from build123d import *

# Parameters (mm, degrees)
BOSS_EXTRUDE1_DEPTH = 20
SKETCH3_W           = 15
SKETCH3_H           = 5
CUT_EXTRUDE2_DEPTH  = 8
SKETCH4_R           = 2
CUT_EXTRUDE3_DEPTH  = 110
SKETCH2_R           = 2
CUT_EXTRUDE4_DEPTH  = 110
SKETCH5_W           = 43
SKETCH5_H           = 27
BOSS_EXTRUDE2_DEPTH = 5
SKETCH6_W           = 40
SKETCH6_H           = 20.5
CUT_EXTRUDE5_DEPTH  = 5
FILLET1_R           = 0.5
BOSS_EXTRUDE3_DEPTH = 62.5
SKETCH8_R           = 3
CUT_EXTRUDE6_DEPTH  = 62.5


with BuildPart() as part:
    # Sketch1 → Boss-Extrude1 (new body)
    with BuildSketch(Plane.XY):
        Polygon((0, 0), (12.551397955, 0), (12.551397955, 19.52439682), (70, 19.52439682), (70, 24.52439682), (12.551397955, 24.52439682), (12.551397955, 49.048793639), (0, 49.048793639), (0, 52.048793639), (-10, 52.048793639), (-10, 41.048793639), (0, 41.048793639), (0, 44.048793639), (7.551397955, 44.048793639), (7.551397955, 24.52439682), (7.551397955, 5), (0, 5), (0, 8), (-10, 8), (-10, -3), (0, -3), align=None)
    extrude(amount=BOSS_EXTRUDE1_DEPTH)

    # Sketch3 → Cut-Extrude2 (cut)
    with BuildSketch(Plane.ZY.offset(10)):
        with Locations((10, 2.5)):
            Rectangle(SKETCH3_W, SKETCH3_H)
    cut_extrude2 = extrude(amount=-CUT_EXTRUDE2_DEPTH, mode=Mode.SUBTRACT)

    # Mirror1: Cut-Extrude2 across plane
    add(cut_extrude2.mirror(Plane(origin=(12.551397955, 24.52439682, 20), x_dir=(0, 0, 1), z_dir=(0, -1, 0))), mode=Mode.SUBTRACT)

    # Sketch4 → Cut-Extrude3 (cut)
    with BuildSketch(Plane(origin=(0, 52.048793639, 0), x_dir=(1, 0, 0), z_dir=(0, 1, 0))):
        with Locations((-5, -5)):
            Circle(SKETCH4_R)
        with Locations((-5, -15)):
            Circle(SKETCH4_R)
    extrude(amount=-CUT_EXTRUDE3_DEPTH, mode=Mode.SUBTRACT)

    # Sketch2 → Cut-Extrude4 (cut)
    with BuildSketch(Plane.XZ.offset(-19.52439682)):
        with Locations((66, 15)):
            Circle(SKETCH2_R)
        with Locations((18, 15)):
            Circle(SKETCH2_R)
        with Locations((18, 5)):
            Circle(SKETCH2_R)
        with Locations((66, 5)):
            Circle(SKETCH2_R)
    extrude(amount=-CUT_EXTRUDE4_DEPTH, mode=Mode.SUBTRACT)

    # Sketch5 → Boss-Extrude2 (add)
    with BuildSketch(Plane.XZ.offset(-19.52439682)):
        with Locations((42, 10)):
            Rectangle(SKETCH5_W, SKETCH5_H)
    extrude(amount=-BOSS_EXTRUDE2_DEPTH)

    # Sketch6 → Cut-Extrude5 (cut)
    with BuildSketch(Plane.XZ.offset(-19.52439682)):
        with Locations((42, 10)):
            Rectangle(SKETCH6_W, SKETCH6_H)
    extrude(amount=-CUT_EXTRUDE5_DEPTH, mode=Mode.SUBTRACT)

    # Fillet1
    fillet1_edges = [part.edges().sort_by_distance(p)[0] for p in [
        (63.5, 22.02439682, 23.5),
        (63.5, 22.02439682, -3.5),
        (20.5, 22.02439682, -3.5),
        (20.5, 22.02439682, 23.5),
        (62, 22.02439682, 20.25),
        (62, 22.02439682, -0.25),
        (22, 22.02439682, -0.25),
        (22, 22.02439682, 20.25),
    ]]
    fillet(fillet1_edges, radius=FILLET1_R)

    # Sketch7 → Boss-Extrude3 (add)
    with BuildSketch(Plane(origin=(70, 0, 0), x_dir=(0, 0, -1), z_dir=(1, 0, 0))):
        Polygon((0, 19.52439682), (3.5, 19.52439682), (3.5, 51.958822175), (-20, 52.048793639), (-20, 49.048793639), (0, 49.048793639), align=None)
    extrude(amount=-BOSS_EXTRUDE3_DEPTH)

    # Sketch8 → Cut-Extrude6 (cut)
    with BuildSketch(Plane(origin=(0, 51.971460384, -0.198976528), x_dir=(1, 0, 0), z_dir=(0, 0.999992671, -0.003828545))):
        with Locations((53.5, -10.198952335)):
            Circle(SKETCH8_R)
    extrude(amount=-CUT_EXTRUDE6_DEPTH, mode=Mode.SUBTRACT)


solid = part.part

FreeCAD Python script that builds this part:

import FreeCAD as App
import Part
import Sketcher

V = App.Vector


def edges_at(feature, points):
    """Names of the edges that pass closest to the given points."""
    edges = feature.Shape.Edges
    near = lambda p: min(range(len(edges)), key=lambda i: edges[i].distToShape(Part.Vertex(*p))[0])
    return sorted({f"Edge{near(p) + 1}" for p in points})

doc = App.newDocument("Part")
params = doc.addObject("Spreadsheet::Sheet", "Params")
for row, (alias, value) in enumerate([
    ("sketch1_width", "10 mm"),
    ("sketch1_height", "5 mm"),
    ("sketch1_height2", "3 mm"),
    ("sketch1_height3", "11 mm"),
    ("pad1_length", "20 mm"),
    ("sketch2_width", "5 mm"),
    ("sketch2_height", "15 mm"),
    ("pocket1_length", "8 mm"),
    ("sketch3_diameter", "4 mm"),
    ("pocket2_length", "110 mm"),
    ("sketch4_diameter", "4 mm"),
    ("pocket3_length", "110 mm"),
    ("sketch5_width", "43 mm"),
    ("sketch5_height", "27 mm"),
    ("pad2_length", "5 mm"),
    ("sketch6_width", "40 mm"),
    ("sketch6_height", "20.5 mm"),
    ("pocket4_length", "5 mm"),
    ("fillet_radius", "0.5 mm"),
    ("sketch7_width", "3 mm"),
    ("sketch7_height", "20 mm"),
    ("sketch7_height2", "3.5 mm"),
    ("pad3_length", "62.5 mm"),
    ("sketch8_diameter", "6 mm"),
    ("pocket5_length", "62.5 mm"),
], start=1):
    params.set(f"A{row}", alias)
    params.set(f"B{row}", "=" + value)
    params.setAlias(f"B{row}", alias)

body = doc.addObject("PartDesign::Body", "Body")

# Sketch on XY plane
sketch1 = body.newObject("Sketcher::SketchObject", "Sketch")
sketch1.AttachmentSupport = (doc.getObject("XY_Plane"), [""])
sketch1.MapMode = "FlatFace"
sketch1.addGeometry([
    Part.LineSegment(V(0, 0, 0), V(12.6, 0, 0)),  # 0
    Part.LineSegment(V(12.6, 0, 0), V(12.6, 19.5, 0)),  # 1
    Part.LineSegment(V(12.6, 19.5, 0), V(70, 19.5, 0)),  # 2
    Part.LineSegment(V(70, 19.5, 0), V(70, 24.5, 0)),  # 3
    Part.LineSegment(V(70, 24.5, 0), V(12.6, 24.5, 0)),  # 4
    Part.LineSegment(V(12.6, 24.5, 0), V(12.6, 49, 0)),  # 5
    Part.LineSegment(V(12.6, 49, 0), V(0, 49, 0)),  # 6
    Part.LineSegment(V(0, 49, 0), V(0, 52, 0)),  # 7
    Part.LineSegment(V(0, 52, 0), V(-10, 52, 0)),  # 8
    Part.LineSegment(V(-10, 52, 0), V(-10, 41, 0)),  # 9
    Part.LineSegment(V(-10, 41, 0), V(0, 41, 0)),  # 10
    Part.LineSegment(V(0, 41, 0), V(0, 44, 0)),  # 11
    Part.LineSegment(V(0, 44, 0), V(7.6, 44, 0)),  # 12
    Part.LineSegment(V(7.6, 44, 0), V(7.6, 5, 0)),  # 13
    Part.LineSegment(V(7.6, 5, 0), V(0, 5, 0)),  # 14
    Part.LineSegment(V(0, 5, 0), V(0, 8, 0)),  # 15
    Part.LineSegment(V(0, 8, 0), V(-10, 8, 0)),  # 16
    Part.LineSegment(V(-10, 8, 0), V(-10, -3, 0)),  # 17
    Part.LineSegment(V(-10, -3, 0), V(0, -3, 0)),  # 18
    Part.LineSegment(V(0, -3, 0), V(0, 0, 0)),  # 19
], False)
sketch1.addConstraint([
    Sketcher.Constraint("Coincident", 0, 2, 1, 1),
    Sketcher.Constraint("Coincident", 1, 2, 2, 1),
    Sketcher.Constraint("Coincident", 2, 2, 3, 1),
    Sketcher.Constraint("Coincident", 3, 2, 4, 1),
    Sketcher.Constraint("Coincident", 4, 2, 5, 1),
    Sketcher.Constraint("Coincident", 5, 2, 6, 1),
    Sketcher.Constraint("Coincident", 6, 2, 7, 1),
    Sketcher.Constraint("Coincident", 7, 2, 8, 1),
    Sketcher.Constraint("Coincident", 8, 2, 9, 1),
    Sketcher.Constraint("Coincident", 9, 2, 10, 1),
    Sketcher.Constraint("Coincident", 10, 2, 11, 1),
    Sketcher.Constraint("Coincident", 11, 2, 12, 1),
    Sketcher.Constraint("Coincident", 12, 2, 13, 1),
    Sketcher.Constraint("Coincident", 13, 2, 14, 1),
    Sketcher.Constraint("Coincident", 14, 2, 15, 1),
    Sketcher.Constraint("Coincident", 15, 2, 16, 1),
    Sketcher.Constraint("Coincident", 16, 2, 17, 1),
    Sketcher.Constraint("Coincident", 17, 2, 18, 1),
    Sketcher.Constraint("Coincident", 18, 2, 19, 1),
    Sketcher.Constraint("Coincident", 19, 2, 0, 1),
    Sketcher.Constraint("Horizontal", 0),
    Sketcher.Constraint("Vertical", 1),
    Sketcher.Constraint("Horizontal", 2),
    Sketcher.Constraint("Vertical", 3),
    Sketcher.Constraint("Horizontal", 4),
    Sketcher.Constraint("Vertical", 5),
    Sketcher.Constraint("Horizontal", 6),
    Sketcher.Constraint("Vertical", 7),
    Sketcher.Constraint("Horizontal", 8),
    Sketcher.Constraint("Vertical", 9),
    Sketcher.Constraint("Horizontal", 10),
    Sketcher.Constraint("Vertical", 11),
    Sketcher.Constraint("Horizontal", 12),
    Sketcher.Constraint("Vertical", 13),
    Sketcher.Constraint("Horizontal", 14),
    Sketcher.Constraint("Vertical", 15),
    Sketcher.Constraint("Horizontal", 16),
    Sketcher.Constraint("Vertical", 17),
    Sketcher.Constraint("Horizontal", 18),
    Sketcher.Constraint("Vertical", 19),
    Sketcher.Constraint("Coincident", 19, 2, -1, 1),
    Sketcher.Constraint("PointOnObject", 6, 2, -2),
    Sketcher.Constraint("PointOnObject", 10, 2, -2),
    Sketcher.Constraint("PointOnObject", 14, 2, -2),
    Sketcher.Constraint("Vertical", 1, 2, 4, 2),
    Sketcher.Constraint("Vertical", 9, 2, 16, 2),
    Sketcher.Constraint("Equal", 7, 11),
    Sketcher.Constraint("Equal", 11, 15),
    Sketcher.Constraint("Equal", 9, 17),
    Sketcher.Constraint("Equal", 15, 19),
    Sketcher.Constraint("DistanceX", 8, 2, 8, 1, 10.0),
    Sketcher.Constraint("DistanceY", 3, 1, 3, 2, 5.0),
    Sketcher.Constraint("DistanceY", 7, 1, 7, 2, 3.0),
    Sketcher.Constraint("DistanceY", 9, 2, 9, 1, 11.0),
    Sketcher.Constraint("DistanceX", -1, 1, 2, 2, 70.0),
    Sketcher.Constraint("DistanceX", 12, 2, 5, 2, 5.0),
    Sketcher.Constraint("DistanceX", 0, 1, 0, 2, 12.551398),
    Sketcher.Constraint("DistanceY", 1, 1, 1, 2, 19.524397),
    Sketcher.Constraint("DistanceY", 5, 1, 5, 2, 24.524397),
])
sketch1.setExpression("Constraints[50]", "Params.sketch1_width")
sketch1.setExpression("Constraints[51]", "Params.sketch1_height")
sketch1.setExpression("Constraints[52]", "Params.sketch1_height2")
sketch1.setExpression("Constraints[53]", "Params.sketch1_height3")
pad1 = body.newObject("PartDesign::Pad", "Pad")
pad1.Profile = sketch1
pad1.setExpression("Length", "Params.pad1_length")

# Sketch on YZ plane
sketch2 = body.newObject("Sketcher::SketchObject", "Sketch001")
sketch2.AttachmentSupport = (doc.getObject("YZ_Plane"), [""])
sketch2.MapMode = "FlatFace"
sketch2.AttachmentOffset = App.Placement(V(0, 0, -10), App.Rotation())
sketch2.addGeometry([
    Part.LineSegment(V(5, 2, 0), V(0, 2, 0)),
    Part.LineSegment(V(0, 2, 0), V(0, 18, 0)),
    Part.LineSegment(V(0, 18, 0), V(5, 18, 0)),
    Part.LineSegment(V(5, 18, 0), V(5, 2, 0)),
], False)
sketch2.addConstraint([
    Sketcher.Constraint("Coincident", 0, 2, 1, 1),
    Sketcher.Constraint("Coincident", 1, 2, 2, 1),
    Sketcher.Constraint("Coincident", 2, 2, 3, 1),
    Sketcher.Constraint("Coincident", 3, 2, 0, 1),
    Sketcher.Constraint("Horizontal", 0),
    Sketcher.Constraint("Vertical", 1),
    Sketcher.Constraint("Horizontal", 2),
    Sketcher.Constraint("Vertical", 3),
    Sketcher.Constraint("PointOnObject", 0, 2, -2),
    Sketcher.Constraint("DistanceX", 0, 2, 0, 1, 5.0),
    Sketcher.Constraint("DistanceY", 1, 1, 1, 2, 15.0),
    Sketcher.Constraint("DistanceY", -1, 1, 0, 2, 2.5),
])
sketch2.setExpression("Constraints[9]", "Params.sketch2_width")
sketch2.setExpression("Constraints[10]", "Params.sketch2_height")
pocket1 = body.newObject("PartDesign::Pocket", "Pocket")
pocket1.Profile = sketch2
pocket1.setExpression("Length", "Params.pocket1_length")
pocket1.Reversed = True
doc.recompute()

datumplane = body.newObject("PartDesign::Plane", "DatumPlane")
datumplane.AttachmentSupport = (doc.getObject("XZ_Plane"), [""])
datumplane.MapMode = "FlatFace"
datumplane.AttachmentOffset = App.Placement(V(0, 0, -24.524397), App.Rotation())
mirrored = body.newObject("PartDesign::Mirrored", "Mirrored")
mirrored.Originals = [pocket1]
mirrored.MirrorPlane = (datumplane, [""])
body.Tip = mirrored

# Sketch on XZ plane
sketch3 = body.newObject("Sketcher::SketchObject", "Sketch002")
sketch3.AttachmentSupport = (doc.getObject("XZ_Plane"), [""])
sketch3.MapMode = "FlatFace"
sketch3.AttachmentOffset = App.Placement(V(0, 0, -52.048794), App.Rotation())
sketch3.addGeometry([
    Part.Circle(V(-5, 5, 0), V(0, 0, 1), 2),
    Part.Circle(V(-5, 15, 0), V(0, 0, 1), 2),
], False)
sketch3.addConstraint([
    Sketcher.Constraint("Equal", 0, 1),
    Sketcher.Constraint("Vertical", 0, 3, 1, 3),
    Sketcher.Constraint("Diameter", 0, 4.0),
    Sketcher.Constraint("DistanceX", 0, 3, -1, 1, 5.0),
    Sketcher.Constraint("DistanceY", -1, 1, 0, 3, 5.0),
    Sketcher.Constraint("DistanceY", -1, 1, 1, 3, 15.0),
])
sketch3.setExpression("Constraints[2]", "Params.sketch3_diameter")
pocket2 = body.newObject("PartDesign::Pocket", "Pocket001")
pocket2.Profile = sketch3
pocket2.setExpression("Length", "Params.pocket2_length")
pocket2.Reversed = True

# Sketch on XZ plane
sketch4 = body.newObject("Sketcher::SketchObject", "Sketch003")
sketch4.AttachmentSupport = (doc.getObject("XZ_Plane"), [""])
sketch4.MapMode = "FlatFace"
sketch4.AttachmentOffset = App.Placement(V(0, 0, -19.524397), App.Rotation())
sketch4.addGeometry([
    Part.Circle(V(66, 15, 0), V(0, 0, 1), 2),
    Part.Circle(V(18, 15, 0), V(0, 0, 1), 2),
    Part.Circle(V(18, 5, 0), V(0, 0, 1), 2),
    Part.Circle(V(66, 5, 0), V(0, 0, 1), 2),
], False)
sketch4.addConstraint([
    Sketcher.Constraint("Equal", 0, 1),
    Sketcher.Constraint("Equal", 1, 2),
    Sketcher.Constraint("Equal", 2, 3),
    Sketcher.Constraint("Horizontal", 0, 3, 1, 3),
    Sketcher.Constraint("Horizontal", 2, 3, 3, 3),
    Sketcher.Constraint("Vertical", 1, 3, 2, 3),
    Sketcher.Constraint("Vertical", 0, 3, 3, 3),
    Sketcher.Constraint("Diameter", 0, 4.0),
    Sketcher.Constraint("DistanceX", -1, 1, 0, 3, 66.0),
    Sketcher.Constraint("DistanceY", -1, 1, 0, 3, 15.0),
    Sketcher.Constraint("DistanceX", -1, 1, 1, 3, 18.0),
    Sketcher.Constraint("DistanceY", -1, 1, 2, 3, 5.0),
])
sketch4.setExpression("Constraints[7]", "Params.sketch4_diameter")
pocket3 = body.newObject("PartDesign::Pocket", "Pocket002")
pocket3.Profile = sketch4
pocket3.setExpression("Length", "Params.pocket3_length")

# Sketch on XZ plane
sketch5 = body.newObject("Sketcher::SketchObject", "Sketch004")
sketch5.AttachmentSupport = (doc.getObject("XZ_Plane"), [""])
sketch5.MapMode = "FlatFace"
sketch5.AttachmentOffset = App.Placement(V(0, 0, -19.524397), App.Rotation())
sketch5.addGeometry([
    Part.LineSegment(V(20, 24, 0), V(20, -4, 0)),
    Part.LineSegment(V(20, -4, 0), V(64, -4, 0)),
    Part.LineSegment(V(64, -4, 0), V(64, 24, 0)),
    Part.LineSegment(V(64, 24, 0), V(20, 24, 0)),
], False)
sketch5.addConstraint([
    Sketcher.Constraint("Coincident", 0, 2, 1, 1),
    Sketcher.Constraint("Coincident", 1, 2, 2, 1),
    Sketcher.Constraint("Coincident", 2, 2, 3, 1),
    Sketcher.Constraint("Coincident", 3, 2, 0, 1),
    Sketcher.Constraint("Vertical", 0),
    Sketcher.Constraint("Horizontal", 1),
    Sketcher.Constraint("Vertical", 2),
    Sketcher.Constraint("Horizontal", 3),
    Sketcher.Constraint("DistanceX", 1, 1, 1, 2, 43.0),
    Sketcher.Constraint("DistanceY", 0, 2, 0, 1, 27.0),
    Sketcher.Constraint("DistanceX", -1, 1, 0, 2, 20.5),
    Sketcher.Constraint("DistanceY", 0, 2, -1, 1, 3.5),
])
sketch5.setExpression("Constraints[8]", "Params.sketch5_width")
sketch5.setExpression("Constraints[9]", "Params.sketch5_height")
pad2 = body.newObject("PartDesign::Pad", "Pad001")
pad2.Profile = sketch5
pad2.setExpression("Length", "Params.pad2_length")
pad2.Reversed = True

# Sketch on XZ plane
sketch6 = body.newObject("Sketcher::SketchObject", "Sketch005")
sketch6.AttachmentSupport = (doc.getObject("XZ_Plane"), [""])
sketch6.MapMode = "FlatFace"
sketch6.AttachmentOffset = App.Placement(V(0, 0, -19.524397), App.Rotation())
sketch6.addGeometry([
    Part.LineSegment(V(22, 20, 0), V(22, 0, 0)),
    Part.LineSegment(V(22, 0, 0), V(62, 0, 0)),
    Part.LineSegment(V(62, 0, 0), V(62, 20, 0)),
    Part.LineSegment(V(62, 20, 0), V(22, 20, 0)),
], False)
sketch6.addConstraint([
    Sketcher.Constraint("Coincident", 0, 2, 1, 1),
    Sketcher.Constraint("Coincident", 1, 2, 2, 1),
    Sketcher.Constraint("Coincident", 2, 2, 3, 1),
    Sketcher.Constraint("Coincident", 3, 2, 0, 1),
    Sketcher.Constraint("Vertical", 0),
    Sketcher.Constraint("Horizontal", 1),
    Sketcher.Constraint("Vertical", 2),
    Sketcher.Constraint("Horizontal", 3),
    Sketcher.Constraint("DistanceX", 1, 1, 1, 2, 40.0),
    Sketcher.Constraint("DistanceY", 0, 2, 0, 1, 20.5),
    Sketcher.Constraint("DistanceX", -1, 1, 0, 2, 22.0),
    Sketcher.Constraint("DistanceY", 0, 2, -1, 1, 0.25),
])
sketch6.setExpression("Constraints[8]", "Params.sketch6_width")
sketch6.setExpression("Constraints[9]", "Params.sketch6_height")
pocket4 = body.newObject("PartDesign::Pocket", "Pocket003")
pocket4.Profile = sketch6
pocket4.setExpression("Length", "Params.pocket4_length")
doc.recompute()

fillet = body.newObject("PartDesign::Fillet", "Fillet")
fillet.Base = (pocket4, edges_at(pocket4, [
    (63.5, 22.024, 23.5),
    (63.5, 22.024, -3.5),
    (20.5, 22.024, -3.5),
    (20.5, 22.024, 23.5),
    (62, 22.024, 20.25),
    (62, 22.024, -0.25),
    (22, 22.024, -0.25),
    (22, 22.024, 20.25),
]))
fillet.setExpression("Radius", "Params.fillet_radius")

# Sketch on YZ plane
sketch7 = body.newObject("Sketcher::SketchObject", "Sketch006")
sketch7.AttachmentSupport = (doc.getObject("YZ_Plane"), [""])
sketch7.MapMode = "FlatFace"
sketch7.AttachmentOffset = App.Placement(V(0, 0, 70), App.Rotation())
sketch7.addGeometry([
    Part.LineSegment(V(19.5, 0, 0), V(19.5, -3.5, 0)),  # 0
    Part.LineSegment(V(19.5, -3.5, 0), V(52, -3.5, 0)),  # 1
    Part.LineSegment(V(52, -3.5, 0), V(52, 20, 0)),  # 2
    Part.LineSegment(V(52, 20, 0), V(49, 20, 0)),  # 3
    Part.LineSegment(V(49, 20, 0), V(49, 0, 0)),  # 4
    Part.LineSegment(V(49, 0, 0), V(19.5, 0, 0)),  # 5
], False)
sketch7.addConstraint([
    Sketcher.Constraint("Coincident", 0, 2, 1, 1),
    Sketcher.Constraint("Coincident", 1, 2, 2, 1),
    Sketcher.Constraint("Coincident", 2, 2, 3, 1),
    Sketcher.Constraint("Coincident", 3, 2, 4, 1),
    Sketcher.Constraint("Coincident", 4, 2, 5, 1),
    Sketcher.Constraint("Coincident", 5, 2, 0, 1),
    Sketcher.Constraint("Vertical", 0),
    Sketcher.Constraint("Horizontal", 1),
    Sketcher.Constraint("Horizontal", 3),
    Sketcher.Constraint("Vertical", 4),
    Sketcher.Constraint("Horizontal", 5),
    Sketcher.Constraint("PointOnObject", 4, 2, -1),
    Sketcher.Constraint("DistanceX", 3, 2, 3, 1, 3.0),
    Sketcher.Constraint("DistanceY", 4, 2, 4, 1, 20.0),
    Sketcher.Constraint("DistanceY", 0, 2, 0, 1, 3.5),
    Sketcher.Constraint("DistanceX", 1, 1, 1, 2, 32.434425),
    Sketcher.Constraint("DistanceX", 5, 2, 5, 1, 29.524397),
    Sketcher.Constraint("DistanceX", -1, 1, 0, 2, 19.524397),
])
sketch7.setExpression("Constraints[12]", "Params.sketch7_width")
sketch7.setExpression("Constraints[13]", "Params.sketch7_height")
sketch7.setExpression("Constraints[14]", "Params.sketch7_height2")
pad3 = body.newObject("PartDesign::Pad", "Pad002")
pad3.Profile = sketch7
pad3.setExpression("Length", "Params.pad3_length")
pad3.Reversed = True

# Sketch on an angled plane
sketch8 = body.newObject("Sketcher::SketchObject", "Sketch007")
sketch8.Placement = App.Placement(V(0, 51.97146, -0.198977), App.Rotation(V(1, 0, 0), V(0, -0.003828545, -0.999992671), V(0, 0.999992671, -0.003828545), "ZXY"))
sketch8.addGeometry(Part.Circle(V(53.5, -10.2, 0), V(0, 0, 1), 3), False)
sketch8.addConstraint([
    Sketcher.Constraint("Diameter", 0, 6.0),
    Sketcher.Constraint("DistanceX", -1, 1, 0, 3, 53.5),
    Sketcher.Constraint("DistanceY", 0, 3, -1, 1, 10.198952),
])
sketch8.setExpression("Constraints[0]", "Params.sketch8_diameter")
pocket5 = body.newObject("PartDesign::Pocket", "Pocket004")
pocket5.Profile = sketch8
pocket5.setExpression("Length", "Params.pocket5_length")

doc.recompute()
